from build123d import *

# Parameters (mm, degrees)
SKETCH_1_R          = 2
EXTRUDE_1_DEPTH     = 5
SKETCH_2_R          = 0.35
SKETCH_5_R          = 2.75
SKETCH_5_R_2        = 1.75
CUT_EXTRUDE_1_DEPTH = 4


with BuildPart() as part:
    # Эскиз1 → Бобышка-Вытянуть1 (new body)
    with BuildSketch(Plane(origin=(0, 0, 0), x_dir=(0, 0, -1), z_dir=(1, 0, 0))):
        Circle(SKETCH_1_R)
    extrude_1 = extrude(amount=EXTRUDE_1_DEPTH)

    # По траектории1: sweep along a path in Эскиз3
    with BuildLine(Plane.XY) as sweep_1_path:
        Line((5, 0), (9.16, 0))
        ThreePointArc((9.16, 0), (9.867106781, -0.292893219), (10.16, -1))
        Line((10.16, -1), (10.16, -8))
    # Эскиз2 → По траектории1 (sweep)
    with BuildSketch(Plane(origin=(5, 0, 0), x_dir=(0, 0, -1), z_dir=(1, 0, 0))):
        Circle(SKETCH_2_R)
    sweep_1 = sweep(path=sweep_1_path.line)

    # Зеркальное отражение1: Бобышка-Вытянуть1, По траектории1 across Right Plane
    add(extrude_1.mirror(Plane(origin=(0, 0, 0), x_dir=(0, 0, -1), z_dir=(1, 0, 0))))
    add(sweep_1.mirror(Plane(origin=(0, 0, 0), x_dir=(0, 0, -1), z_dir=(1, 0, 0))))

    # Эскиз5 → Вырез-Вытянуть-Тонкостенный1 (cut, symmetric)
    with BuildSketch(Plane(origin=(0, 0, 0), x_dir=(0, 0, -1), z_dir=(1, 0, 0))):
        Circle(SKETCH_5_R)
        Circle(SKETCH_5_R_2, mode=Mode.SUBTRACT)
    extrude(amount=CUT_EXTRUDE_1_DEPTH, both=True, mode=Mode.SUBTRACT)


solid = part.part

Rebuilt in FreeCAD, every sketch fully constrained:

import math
import FreeCAD as App
import Part
import Sketcher
from FreeCAD import Vector
Q = App.Units.Quantity

doc = App.newDocument("Part")
body = doc.addObject("PartDesign::Body", "Body")

sketch1 = body.newObject("Sketcher::SketchObject", "Sketch")
sketch1.AttachmentSupport = (doc.getObject("YZ_Plane"), [""])
sketch1.MapMode = "FlatFace"
sketch1.addGeometry(Part.Circle(Vector(0, 0, 0), Vector(0, 0, 1), 2), False)
sketch1.addConstraint([
    Sketcher.Constraint("Coincident", 0, 3, -1, 1),
    Sketcher.Constraint("Diameter", 0, Q("4 mm")),
])
pad1 = body.newObject("PartDesign::Pad", "Pad")
pad1.Profile = sketch1
pad1.Length = 5

sketch2 = body.newObject("Sketcher::SketchObject", "Sketch001")
sketch2.AttachmentSupport = (doc.getObject("YZ_Plane"), [""])
sketch2.MapMode = "FlatFace"
sketch2.AttachmentOffset = App.Placement(Vector(0, 0, 5), App.Rotation())
sketch2.addGeometry(Part.Circle(Vector(0, 0, 0), Vector(0, 0, 1), 0.35), False)
sketch2.addConstraint([
    Sketcher.Constraint("Coincident", 0, 3, -1, 1),
    Sketcher.Constraint("Diameter", 0, Q("0.7 mm")),
])

sketch3 = body.newObject("Sketcher::SketchObject", "Sketch002")
sketch3.AttachmentSupport = (doc.getObject("XY_Plane"), [""])
sketch3.MapMode = "FlatFace"
sketch3.addGeometry([
    Part.LineSegment(Vector(5, 0, 0), Vector(9.16, 0, 0)),
    Part.ArcOfCircle(Part.Circle(Vector(9.16, -1, 0), Vector(0, 0, 1), 1), math.radians(0), math.radians(90)),
    Part.LineSegment(Vector(10.16, -1, 0), Vector(10.16, -8, 0)),
], False)
sketch3.addConstraint([
    Sketcher.Constraint("Tangent", 0, 2, 1, 2),
    Sketcher.Constraint("Tangent", 1, 1, 2, 1),
    Sketcher.Constraint("Horizontal", 0),
    Sketcher.Constraint("Vertical", 2),
    Sketcher.Constraint("PointOnObject", 0, 1, -1),
    Sketcher.Constraint("Radius", 1, Q("1 mm")),
    Sketcher.Constraint("DistanceY", 2, 2, 2, 1, Q("7 mm")),
    Sketcher.Constraint("DistanceX", -1, 1, 0, 1, Q("5 mm")),
    Sketcher.Constraint("DistanceX", 0, 1, 0, 2, Q("4.16 mm")),
])
doc.recompute()

additivepipe = body.newObject("PartDesign::AdditivePipe", "AdditivePipe")
additivepipe.Profile = sketch2
additivepipe.Spine = (sketch3, ["Edge1", "Edge2", "Edge3"])
doc.recompute()

mirrored = body.newObject("PartDesign::Mirrored", "Mirrored")
mirrored.Originals = [pad1, additivepipe]
mirrored.MirrorPlane = (doc.getObject("YZ_Plane"), [""])
body.Tip = mirrored

sketch4 = body.newObject("Sketcher::SketchObject", "Sketch003")
sketch4.AttachmentSupport = (doc.getObject("YZ_Plane"), [""])
sketch4.MapMode = "FlatFace"
sketch4.addGeometry([
    Part.Circle(Vector(0, 0, 0), Vector(0, 0, 1), 2.75),
    Part.Circle(Vector(0, 0, 0), Vector(0, 0, 1), 1.75),
], False)
sketch4.addConstraint([
    Sketcher.Constraint("Coincident", 0, 3, -1, 1),
    Sketcher.Constraint("Coincident", 1, 3, -1, 1),
    Sketcher.Constraint("Diameter", 0, Q("5.5 mm")),
    Sketcher.Constraint("Diameter", 1, Q("3.5 mm")),
])
pocket1 = body.newObject("PartDesign::Pocket", "Pocket")
pocket1.Profile = sketch4
pocket1.Length = 8
pocket1.Midplane = True

doc.recompute()
